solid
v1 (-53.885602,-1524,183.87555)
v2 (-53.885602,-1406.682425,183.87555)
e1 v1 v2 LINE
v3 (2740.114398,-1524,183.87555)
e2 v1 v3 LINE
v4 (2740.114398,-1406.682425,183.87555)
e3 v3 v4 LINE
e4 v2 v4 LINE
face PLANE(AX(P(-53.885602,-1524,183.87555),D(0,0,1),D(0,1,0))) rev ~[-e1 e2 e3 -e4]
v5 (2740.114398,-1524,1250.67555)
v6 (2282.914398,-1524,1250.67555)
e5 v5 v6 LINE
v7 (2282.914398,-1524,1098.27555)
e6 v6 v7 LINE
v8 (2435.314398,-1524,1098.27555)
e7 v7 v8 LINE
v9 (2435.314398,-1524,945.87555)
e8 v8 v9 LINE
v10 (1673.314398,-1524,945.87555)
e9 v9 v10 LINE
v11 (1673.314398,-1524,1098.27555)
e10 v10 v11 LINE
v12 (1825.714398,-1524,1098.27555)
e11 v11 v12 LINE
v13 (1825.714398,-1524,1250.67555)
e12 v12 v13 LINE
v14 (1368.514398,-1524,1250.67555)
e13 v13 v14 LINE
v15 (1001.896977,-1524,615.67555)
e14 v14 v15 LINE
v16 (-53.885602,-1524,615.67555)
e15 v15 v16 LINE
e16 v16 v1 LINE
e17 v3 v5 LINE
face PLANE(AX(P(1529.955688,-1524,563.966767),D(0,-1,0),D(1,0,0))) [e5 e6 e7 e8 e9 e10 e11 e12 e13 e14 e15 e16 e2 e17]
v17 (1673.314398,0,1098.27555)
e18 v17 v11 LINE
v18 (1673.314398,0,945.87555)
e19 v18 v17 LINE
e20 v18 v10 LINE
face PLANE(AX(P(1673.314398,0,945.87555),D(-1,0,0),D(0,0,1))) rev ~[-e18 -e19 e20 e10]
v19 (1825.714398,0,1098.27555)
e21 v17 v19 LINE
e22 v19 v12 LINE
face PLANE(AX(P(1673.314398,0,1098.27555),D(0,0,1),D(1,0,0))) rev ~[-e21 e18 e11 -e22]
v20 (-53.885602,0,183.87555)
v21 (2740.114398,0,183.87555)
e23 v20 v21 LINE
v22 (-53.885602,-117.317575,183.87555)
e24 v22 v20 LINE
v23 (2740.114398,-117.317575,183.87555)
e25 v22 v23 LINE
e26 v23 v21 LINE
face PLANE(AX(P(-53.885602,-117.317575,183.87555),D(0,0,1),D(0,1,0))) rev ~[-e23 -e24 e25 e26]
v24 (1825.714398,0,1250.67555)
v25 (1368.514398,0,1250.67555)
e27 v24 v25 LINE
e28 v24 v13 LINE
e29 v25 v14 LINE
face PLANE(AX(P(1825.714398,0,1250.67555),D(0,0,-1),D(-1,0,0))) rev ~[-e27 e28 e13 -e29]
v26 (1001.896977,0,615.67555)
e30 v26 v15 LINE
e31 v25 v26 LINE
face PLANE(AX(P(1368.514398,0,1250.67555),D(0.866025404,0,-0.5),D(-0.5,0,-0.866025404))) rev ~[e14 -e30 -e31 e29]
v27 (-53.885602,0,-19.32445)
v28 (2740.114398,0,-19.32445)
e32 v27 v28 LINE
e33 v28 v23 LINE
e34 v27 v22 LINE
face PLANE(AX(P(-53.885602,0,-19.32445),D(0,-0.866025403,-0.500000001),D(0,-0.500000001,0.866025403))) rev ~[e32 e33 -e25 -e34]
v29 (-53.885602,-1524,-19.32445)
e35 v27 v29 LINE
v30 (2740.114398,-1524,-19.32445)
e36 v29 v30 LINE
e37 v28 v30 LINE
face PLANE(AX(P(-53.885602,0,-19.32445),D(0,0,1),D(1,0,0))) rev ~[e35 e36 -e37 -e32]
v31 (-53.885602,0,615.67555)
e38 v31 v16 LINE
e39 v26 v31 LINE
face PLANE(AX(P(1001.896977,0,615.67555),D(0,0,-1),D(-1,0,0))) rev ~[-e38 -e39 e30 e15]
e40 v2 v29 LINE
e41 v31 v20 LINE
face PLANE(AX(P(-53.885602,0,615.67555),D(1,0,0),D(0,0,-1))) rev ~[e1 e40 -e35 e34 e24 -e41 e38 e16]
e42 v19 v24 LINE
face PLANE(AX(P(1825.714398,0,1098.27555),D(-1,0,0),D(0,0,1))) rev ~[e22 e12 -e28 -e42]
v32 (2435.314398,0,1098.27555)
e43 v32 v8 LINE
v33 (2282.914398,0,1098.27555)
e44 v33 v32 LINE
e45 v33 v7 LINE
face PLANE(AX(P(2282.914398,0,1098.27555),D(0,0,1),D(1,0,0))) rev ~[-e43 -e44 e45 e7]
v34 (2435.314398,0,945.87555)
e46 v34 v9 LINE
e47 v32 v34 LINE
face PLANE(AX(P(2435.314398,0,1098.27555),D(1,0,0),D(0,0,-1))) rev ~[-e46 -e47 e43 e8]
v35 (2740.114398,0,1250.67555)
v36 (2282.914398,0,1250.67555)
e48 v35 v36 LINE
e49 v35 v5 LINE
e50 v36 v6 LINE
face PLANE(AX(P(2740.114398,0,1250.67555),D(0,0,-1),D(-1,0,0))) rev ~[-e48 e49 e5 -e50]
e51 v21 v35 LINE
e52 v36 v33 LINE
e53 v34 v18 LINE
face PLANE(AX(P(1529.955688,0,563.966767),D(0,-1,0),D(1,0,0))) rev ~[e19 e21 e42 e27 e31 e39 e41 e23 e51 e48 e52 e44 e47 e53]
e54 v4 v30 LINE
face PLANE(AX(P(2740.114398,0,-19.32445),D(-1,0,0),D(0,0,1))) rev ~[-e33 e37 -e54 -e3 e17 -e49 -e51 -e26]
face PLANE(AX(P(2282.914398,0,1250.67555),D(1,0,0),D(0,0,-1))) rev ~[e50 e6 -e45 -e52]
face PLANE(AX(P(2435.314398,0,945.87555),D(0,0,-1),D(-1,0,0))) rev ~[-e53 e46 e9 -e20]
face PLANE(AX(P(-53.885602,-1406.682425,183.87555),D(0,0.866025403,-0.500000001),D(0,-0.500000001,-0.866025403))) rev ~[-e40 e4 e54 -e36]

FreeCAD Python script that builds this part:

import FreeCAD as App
import Part
import Sketcher

V = App.Vector
Q = App.Units.Quantity

doc = App.newDocument("Part")
params = doc.addObject("Spreadsheet::Sheet", "Params")
for row, (alias, value) in enumerate([
    ("sketch1_width", "110 in"),
    ("sketch1_width2", "18 in"),
    ("sketch1_width3", "6 in"),
    ("sketch1_width4", "30 in"),
    ("sketch1_height", "25 in"),
    ("pad1_length", "60 in"),
    ("sketch2_height", "8 in"),
    ("sketch3_height", "8 in"),
], start=1):
    params.set(f"A{row}", alias)
    params.set(f"B{row}", "=" + value)
    params.setAlias(f"B{row}", alias)

body = doc.addObject("PartDesign::Body", "Body")

# Sketch on XZ plane
sketch1 = body.newObject("Sketcher::SketchObject", "Sketch")
sketch1.AttachmentSupport = (doc.getObject("XZ_Plane"), [""])
sketch1.MapMode = "FlatFace"
sketch1.addGeometry([
    Part.LineSegment(V(-54, 616, 0), V(-54, -19, 0)),  # 0
    Part.LineSegment(V(-54, -19, 0), V(2740, -19, 0)),  # 1
    Part.LineSegment(V(2740, -19, 0), V(2740, 1251, 0)),  # 2
    Part.LineSegment(V(2740, 1251, 0), V(2283, 1251, 0)),  # 3
    Part.LineSegment(V(2283, 1251, 0), V(2283, 1098, 0)),  # 4
    Part.LineSegment(V(2283, 1098, 0), V(2435, 1098, 0)),  # 5
    Part.LineSegment(V(2435, 1098, 0), V(2435, 946, 0)),  # 6
    Part.LineSegment(V(2435, 946, 0), V(1673, 946, 0)),  # 7
    Part.LineSegment(V(1673, 946, 0), V(1673, 1098, 0)),  # 8
    Part.LineSegment(V(1673, 1098, 0), V(1826, 1098, 0)),  # 9
    Part.LineSegment(V(1826, 1098, 0), V(1826, 1251, 0)),  # 10
    Part.LineSegment(V(1826, 1251, 0), V(1369, 1251, 0)),  # 11
    Part.LineSegment(V(1369, 1251, 0), V(1002, 616, 0)),  # 12
    Part.LineSegment(V(1002, 616, 0), V(-54, 616, 0)),  # 13
], False)
sketch1.addConstraint([
    Sketcher.Constraint("Coincident", 0, 2, 1, 1),
    Sketcher.Constraint("Coincident", 1, 2, 2, 1),
    Sketcher.Constraint("Coincident", 2, 2, 3, 1),
    Sketcher.Constraint("Coincident", 3, 2, 4, 1),
    Sketcher.Constraint("Coincident", 4, 2, 5, 1),
    Sketcher.Constraint("Coincident", 5, 2, 6, 1),
    Sketcher.Constraint("Coincident", 6, 2, 7, 1),
    Sketcher.Constraint("Coincident", 7, 2, 8, 1),
    Sketcher.Constraint("Coincident", 8, 2, 9, 1),
    Sketcher.Constraint("Coincident", 9, 2, 10, 1),
    Sketcher.Constraint("Coincident", 10, 2, 11, 1),
    Sketcher.Constraint("Coincident", 11, 2, 12, 1),
    Sketcher.Constraint("Coincident", 12, 2, 13, 1),
    Sketcher.Constraint("Coincident", 13, 2, 0, 1),
    Sketcher.Constraint("Vertical", 0),
    Sketcher.Constraint("Horizontal", 1),
    Sketcher.Constraint("Vertical", 2),
    Sketcher.Constraint("Horizontal", 3),
    Sketcher.Constraint("Vertical", 4),
    Sketcher.Constraint("Horizontal", 5),
    Sketcher.Constraint("Vertical", 6),
    Sketcher.Constraint("Horizontal", 7),
    Sketcher.Constraint("Vertical", 8),
    Sketcher.Constraint("Horizontal", 9),
    Sketcher.Constraint("Vertical", 10),
    Sketcher.Constraint("Horizontal", 11),
    Sketcher.Constraint("Horizontal", 13),
    Sketcher.Constraint("Horizontal", 5, 2, 8, 2),
    Sketcher.Constraint("Horizontal", 3, 2, 10, 2),
    Sketcher.Constraint("Equal", 5, 9),
    Sketcher.Constraint("Equal", 3, 11),
    Sketcher.Constraint("Equal", 9, 4),
    Sketcher.Constraint("Equal", 4, 6),
    Sketcher.Constraint("DistanceX", 1, 1, 1, 2, Q("110 in")),
    Sketcher.Constraint("DistanceX", 3, 2, 3, 1, Q("18 in")),
    Sketcher.Constraint("DistanceX", 5, 1, 5, 2, Q("6 in")),
    Sketcher.Constraint("DistanceX", 7, 2, 7, 1, Q("30 in")),
    Sketcher.Constraint("DistanceY", 0, 2, 0, 1, Q("25 in")),
    Sketcher.Constraint("DistanceY", 2, 1, 2, 2, Q("50 in")),
    Sketcher.Constraint("Angle", 12, Q("-120 deg")),
    Sketcher.Constraint("DistanceX", -1, 1, 1, 2, Q("2740.114398 mm")),
    Sketcher.Constraint("DistanceY", 0, 2, -1, 1, Q("19.32445 mm")),
])
sketch1.setExpression("Constraints[33]", "Params.sketch1_width")
sketch1.setExpression("Constraints[34]", "Params.sketch1_width2")
sketch1.setExpression("Constraints[35]", "Params.sketch1_width3")
sketch1.setExpression("Constraints[36]", "Params.sketch1_width4")
sketch1.setExpression("Constraints[37]", "Params.sketch1_height")
pad1 = body.newObject("PartDesign::Pad", "Pad")
pad1.Profile = sketch1
pad1.setExpression("Length", "Params.pad1_length")

# Sketch on YZ plane
sketch2 = body.newObject("Sketcher::SketchObject", "Sketch001")
sketch2.AttachmentSupport = (doc.getObject("YZ_Plane"), [""])
sketch2.MapMode = "FlatFace"
sketch2.AttachmentOffset = App.Placement(V(0, 0, -53.885602), App.Rotation())
sketch2.addGeometry([
    Part.LineSegment(V(0, 184, 0), V(0, -19, 0)),
    Part.LineSegment(V(0, -19, 0), V(-117, 184, 0)),
    Part.LineSegment(V(-117, 184, 0), V(0, 184, 0)),
], False)
sketch2.addConstraint([
    Sketcher.Constraint("Coincident", 0, 2, 1, 1),
    Sketcher.Constraint("Coincident", 1, 2, 2, 1),
    Sketcher.Constraint("Coincident", 2, 2, 0, 1),
    Sketcher.Constraint("Vertical", 0),
    Sketcher.Constraint("Horizontal", 2),
    Sketcher.Constraint("PointOnObject", 0, 2, -2),
    Sketcher.Constraint("DistanceY", 0, 2, 0, 1, Q("8 in")),
    Sketcher.Constraint("Angle", 1, Q("120 deg")),
    Sketcher.Constraint("DistanceY", 0, 2, -1, 1, Q("19.32445 mm")),
])
sketch2.setExpression("Constraints[6]", "Params.sketch2_height")
pocket1 = body.newObject("PartDesign::Pocket", "Pocket")
pocket1.Profile = sketch2
pocket1.Type = "ThroughAll"
pocket1.Reversed = True

# Sketch on YZ plane
sketch3 = body.newObject("Sketcher::SketchObject", "Sketch002")
sketch3.AttachmentSupport = (doc.getObject("YZ_Plane"), [""])
sketch3.MapMode = "FlatFace"
sketch3.AttachmentOffset = App.Placement(V(0, 0, -53.885602), App.Rotation())
sketch3.addGeometry([
    Part.LineSegment(V(-1407, 184, 0), V(-1524, -19, 0)),
    Part.LineSegment(V(-1524, -19, 0), V(-1524, 184, 0)),
    Part.LineSegment(V(-1524, 184, 0), V(-1407, 184, 0)),
], False)
sketch3.addConstraint([
    Sketcher.Constraint("Coincident", 0, 2, 1, 1),
    Sketcher.Constraint("Coincident", 1, 2, 2, 1),
    Sketcher.Constraint("Coincident", 2, 2, 0, 1),
    Sketcher.Constraint("Vertical", 1),
    Sketcher.Constraint("Horizontal", 2),
    Sketcher.Constraint("DistanceY", 1, 1, 1, 2, Q("8 in")),
    Sketcher.Constraint("DistanceX", 0, 2, -1, 1, Q("60 in")),
    Sketcher.Constraint("Angle", 0, Q("-120 deg")),
    Sketcher.Constraint("DistanceY", 0, 2, -1, 1, Q("19.32445 mm")),
])
sketch3.setExpression("Constraints[5]", "Params.sketch3_height")
pocket2 = body.newObject("PartDesign::Pocket", "Pocket001")
pocket2.Profile = sketch3
pocket2.Type = "ThroughAll"
pocket2.Reversed = True

doc.recompute()
